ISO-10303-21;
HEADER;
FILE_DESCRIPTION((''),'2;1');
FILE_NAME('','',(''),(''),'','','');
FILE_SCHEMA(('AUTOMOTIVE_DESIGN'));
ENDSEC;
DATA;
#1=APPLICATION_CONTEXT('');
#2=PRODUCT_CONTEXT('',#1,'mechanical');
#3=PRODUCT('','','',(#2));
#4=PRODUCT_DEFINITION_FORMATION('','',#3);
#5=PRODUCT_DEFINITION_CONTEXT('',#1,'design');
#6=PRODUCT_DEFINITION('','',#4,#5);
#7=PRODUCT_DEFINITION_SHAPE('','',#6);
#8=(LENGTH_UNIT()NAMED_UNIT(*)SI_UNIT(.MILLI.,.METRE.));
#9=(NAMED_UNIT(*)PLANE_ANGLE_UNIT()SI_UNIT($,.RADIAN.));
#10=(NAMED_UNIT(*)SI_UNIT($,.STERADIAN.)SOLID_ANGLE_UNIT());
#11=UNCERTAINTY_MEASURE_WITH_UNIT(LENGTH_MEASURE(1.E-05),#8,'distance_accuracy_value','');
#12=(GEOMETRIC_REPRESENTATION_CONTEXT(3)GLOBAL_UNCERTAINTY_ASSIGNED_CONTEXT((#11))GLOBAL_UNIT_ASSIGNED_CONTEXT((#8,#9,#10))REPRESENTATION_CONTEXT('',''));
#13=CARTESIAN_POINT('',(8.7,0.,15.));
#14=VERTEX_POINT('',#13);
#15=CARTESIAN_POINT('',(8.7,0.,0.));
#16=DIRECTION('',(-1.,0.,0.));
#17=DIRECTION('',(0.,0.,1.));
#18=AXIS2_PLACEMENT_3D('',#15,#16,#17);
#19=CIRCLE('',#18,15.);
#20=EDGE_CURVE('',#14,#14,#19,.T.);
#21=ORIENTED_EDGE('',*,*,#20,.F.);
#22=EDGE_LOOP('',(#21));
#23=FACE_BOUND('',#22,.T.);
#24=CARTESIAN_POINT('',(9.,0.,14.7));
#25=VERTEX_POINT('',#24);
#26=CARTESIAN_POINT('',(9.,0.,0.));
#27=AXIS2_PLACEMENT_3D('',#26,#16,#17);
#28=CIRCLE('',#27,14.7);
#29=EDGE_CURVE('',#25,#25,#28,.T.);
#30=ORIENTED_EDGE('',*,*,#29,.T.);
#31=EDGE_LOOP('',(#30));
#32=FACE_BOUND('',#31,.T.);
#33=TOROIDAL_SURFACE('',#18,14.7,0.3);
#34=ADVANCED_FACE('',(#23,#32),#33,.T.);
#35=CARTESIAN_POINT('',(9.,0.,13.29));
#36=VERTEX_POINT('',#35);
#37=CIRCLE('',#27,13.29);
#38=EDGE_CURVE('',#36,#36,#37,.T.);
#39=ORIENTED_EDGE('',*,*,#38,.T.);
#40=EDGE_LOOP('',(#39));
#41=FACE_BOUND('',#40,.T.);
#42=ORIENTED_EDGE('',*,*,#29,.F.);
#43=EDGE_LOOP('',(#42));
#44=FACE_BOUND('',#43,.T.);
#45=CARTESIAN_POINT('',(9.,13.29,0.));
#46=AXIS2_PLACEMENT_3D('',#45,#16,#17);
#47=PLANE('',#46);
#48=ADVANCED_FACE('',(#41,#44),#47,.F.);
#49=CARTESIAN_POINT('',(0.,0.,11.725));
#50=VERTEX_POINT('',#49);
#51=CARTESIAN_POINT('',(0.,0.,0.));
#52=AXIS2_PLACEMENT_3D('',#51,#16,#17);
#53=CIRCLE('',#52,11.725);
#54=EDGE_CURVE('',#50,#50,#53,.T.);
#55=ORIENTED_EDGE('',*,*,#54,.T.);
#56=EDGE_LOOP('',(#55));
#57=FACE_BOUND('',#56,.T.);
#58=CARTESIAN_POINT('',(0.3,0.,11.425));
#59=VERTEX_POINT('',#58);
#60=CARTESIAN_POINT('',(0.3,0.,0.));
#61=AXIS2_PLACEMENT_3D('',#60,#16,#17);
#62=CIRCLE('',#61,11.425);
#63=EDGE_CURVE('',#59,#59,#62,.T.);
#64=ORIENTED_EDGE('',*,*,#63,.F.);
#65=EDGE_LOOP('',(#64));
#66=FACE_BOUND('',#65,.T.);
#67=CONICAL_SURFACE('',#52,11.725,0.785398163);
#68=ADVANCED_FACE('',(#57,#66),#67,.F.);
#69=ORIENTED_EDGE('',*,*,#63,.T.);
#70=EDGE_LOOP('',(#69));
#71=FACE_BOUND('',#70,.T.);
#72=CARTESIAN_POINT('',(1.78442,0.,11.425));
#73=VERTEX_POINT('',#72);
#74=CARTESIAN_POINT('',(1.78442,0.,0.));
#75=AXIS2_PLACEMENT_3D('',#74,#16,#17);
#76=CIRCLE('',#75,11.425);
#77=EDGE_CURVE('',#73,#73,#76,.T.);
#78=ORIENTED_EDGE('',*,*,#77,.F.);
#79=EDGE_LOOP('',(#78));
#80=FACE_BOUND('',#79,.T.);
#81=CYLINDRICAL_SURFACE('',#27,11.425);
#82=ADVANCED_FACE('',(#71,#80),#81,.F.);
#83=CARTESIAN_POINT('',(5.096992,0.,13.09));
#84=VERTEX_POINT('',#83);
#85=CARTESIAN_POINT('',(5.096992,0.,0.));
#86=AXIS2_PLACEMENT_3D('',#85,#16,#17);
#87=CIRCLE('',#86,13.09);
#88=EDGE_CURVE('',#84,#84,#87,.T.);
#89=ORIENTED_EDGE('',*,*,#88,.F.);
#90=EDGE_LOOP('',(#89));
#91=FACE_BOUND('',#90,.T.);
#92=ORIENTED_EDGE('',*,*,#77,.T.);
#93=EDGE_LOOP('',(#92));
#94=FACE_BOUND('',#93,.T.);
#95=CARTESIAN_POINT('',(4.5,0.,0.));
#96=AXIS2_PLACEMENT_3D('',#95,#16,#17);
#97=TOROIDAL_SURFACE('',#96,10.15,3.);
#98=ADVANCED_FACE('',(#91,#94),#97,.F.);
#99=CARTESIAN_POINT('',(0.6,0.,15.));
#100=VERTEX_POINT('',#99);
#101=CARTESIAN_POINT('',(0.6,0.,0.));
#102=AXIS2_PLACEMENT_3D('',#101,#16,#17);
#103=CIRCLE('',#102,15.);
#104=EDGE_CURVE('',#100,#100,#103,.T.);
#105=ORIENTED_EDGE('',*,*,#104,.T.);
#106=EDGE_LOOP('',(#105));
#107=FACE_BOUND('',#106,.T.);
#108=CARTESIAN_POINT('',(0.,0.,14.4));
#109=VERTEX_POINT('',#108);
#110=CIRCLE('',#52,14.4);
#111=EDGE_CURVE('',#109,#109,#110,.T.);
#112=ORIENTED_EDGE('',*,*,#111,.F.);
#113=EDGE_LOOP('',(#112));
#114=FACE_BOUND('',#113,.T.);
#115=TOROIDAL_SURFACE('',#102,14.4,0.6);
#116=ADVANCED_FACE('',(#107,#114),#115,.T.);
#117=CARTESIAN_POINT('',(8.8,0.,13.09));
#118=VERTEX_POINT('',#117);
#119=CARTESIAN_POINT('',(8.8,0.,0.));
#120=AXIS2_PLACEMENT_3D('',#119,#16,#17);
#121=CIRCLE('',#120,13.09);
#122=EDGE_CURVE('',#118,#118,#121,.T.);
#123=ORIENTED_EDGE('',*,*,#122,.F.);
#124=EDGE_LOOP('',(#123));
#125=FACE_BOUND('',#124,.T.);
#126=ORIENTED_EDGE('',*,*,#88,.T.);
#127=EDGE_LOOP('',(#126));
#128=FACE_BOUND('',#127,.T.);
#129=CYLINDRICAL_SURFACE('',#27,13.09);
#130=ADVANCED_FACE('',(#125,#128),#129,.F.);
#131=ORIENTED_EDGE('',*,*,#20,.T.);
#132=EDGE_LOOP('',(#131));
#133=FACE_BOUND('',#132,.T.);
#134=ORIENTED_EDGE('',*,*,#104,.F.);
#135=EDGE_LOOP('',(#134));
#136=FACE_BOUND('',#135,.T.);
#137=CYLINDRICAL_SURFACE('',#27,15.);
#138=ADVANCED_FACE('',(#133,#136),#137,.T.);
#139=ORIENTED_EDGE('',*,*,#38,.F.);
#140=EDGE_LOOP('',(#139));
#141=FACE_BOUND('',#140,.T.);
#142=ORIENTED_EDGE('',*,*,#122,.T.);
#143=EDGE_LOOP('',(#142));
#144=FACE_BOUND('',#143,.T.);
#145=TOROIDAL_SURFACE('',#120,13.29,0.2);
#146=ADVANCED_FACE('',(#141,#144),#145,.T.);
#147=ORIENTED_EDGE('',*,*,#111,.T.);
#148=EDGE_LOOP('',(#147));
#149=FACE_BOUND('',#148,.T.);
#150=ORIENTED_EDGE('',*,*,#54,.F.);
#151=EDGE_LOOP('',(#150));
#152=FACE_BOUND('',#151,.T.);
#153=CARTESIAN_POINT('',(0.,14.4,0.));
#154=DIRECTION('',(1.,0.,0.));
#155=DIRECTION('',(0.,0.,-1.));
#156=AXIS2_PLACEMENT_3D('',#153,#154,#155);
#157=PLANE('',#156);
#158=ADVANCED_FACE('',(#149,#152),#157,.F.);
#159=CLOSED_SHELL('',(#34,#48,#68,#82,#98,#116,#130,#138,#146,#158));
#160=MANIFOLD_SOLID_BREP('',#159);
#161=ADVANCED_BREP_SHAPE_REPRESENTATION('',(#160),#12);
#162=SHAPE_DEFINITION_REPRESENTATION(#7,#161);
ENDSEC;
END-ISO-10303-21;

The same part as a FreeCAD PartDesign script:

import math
import FreeCAD as App
import Part
import Sketcher

V = App.Vector
Q = App.Units.Quantity

doc = App.newDocument("Part")
body = doc.addObject("PartDesign::Body", "Body")

sketch1 = doc.addObject("Sketcher::SketchObject", "Sketch")
body.addObject(sketch1)
sketch1.AttachmentSupport = (doc.XY_Plane, [""])
sketch1.MapMode = "FlatFace"
sketch1.addGeometry([
    Part.LineSegment(V(0, 11.725, 0), V(0.3, 11.425, 0)),
    Part.LineSegment(V(0.3, 11.425, 0), V(1.78442, 11.425, 0)),
    Part.ArcOfCircle(Part.Circle(V(4.5, 10.15, 0), V(0, 0, 1), 3), math.radians(78.521659), math.radians(154.849337)),
    Part.LineSegment(V(5.096992, 13.09, 0), V(8.8, 13.09, 0)),
    Part.ArcOfCircle(Part.Circle(V(8.8, 13.29, 0), V(0, 0, 1), 0.2), math.radians(-90), math.radians(0)),
    Part.LineSegment(V(9, 13.29, 0), V(9, 14.7, 0)),
    Part.ArcOfCircle(Part.Circle(V(8.7, 14.7, 0), V(0, 0, 1), 0.3), math.radians(0), math.radians(90)),
    Part.LineSegment(V(8.7, 15, 0), V(0.6, 15, 0)),
    Part.ArcOfCircle(Part.Circle(V(0.6, 14.4, 0), V(0, 0, 1), 0.6), math.radians(90), math.radians(180)),
    Part.LineSegment(V(0, 14.4, 0), V(0, 11.725, 0)),
], False)
sketch1.addConstraint([
    Sketcher.Constraint("Coincident", 0, 2, 1, 1),
    Sketcher.Constraint("Coincident", 1, 2, 2, 2),
    Sketcher.Constraint("Coincident", 2, 1, 3, 1),
    Sketcher.Constraint("Tangent", 3, 2, 4, 1),
    Sketcher.Constraint("Tangent", 4, 2, 5, 1),
    Sketcher.Constraint("Tangent", 5, 2, 6, 1),
    Sketcher.Constraint("Tangent", 6, 2, 7, 1),
    Sketcher.Constraint("Tangent", 7, 2, 8, 1),
    Sketcher.Constraint("Tangent", 8, 2, 9, 1),
    Sketcher.Constraint("Coincident", 9, 2, 0, 1),
    Sketcher.Constraint("Horizontal", 1),
    Sketcher.Constraint("Horizontal", 3),
    Sketcher.Constraint("Vertical", 5),
    Sketcher.Constraint("Horizontal", 7),
    Sketcher.Constraint("Vertical", 9),
    Sketcher.Constraint("PointOnObject", 8, 2, -2),
    Sketcher.Constraint("Radius", 2, 3.0),
    Sketcher.Constraint("Radius", 4, 0.2),
    Sketcher.Constraint("Radius", 6, 0.3),
    Sketcher.Constraint("Radius", 8, 0.6),
    Sketcher.Constraint("Angle", 0, Q("-45 deg")),
    Sketcher.Constraint("DistanceX", 7, 2, 7, 1, 8.1),
    Sketcher.Constraint("DistanceY", -1, 1, 6, 2, 15.0),
    Sketcher.Constraint("DistanceY", 5, 1, 5, 2, 1.41),
    Sketcher.Constraint("DistanceX", -1, 1, 2, 3, 4.5),
    Sketcher.Constraint("DistanceX", -1, 1, 0, 2, 0.3),
    Sketcher.Constraint("DistanceY", 9, 2, 9, 1, 2.675),
    Sketcher.Constraint("DistanceY", -1, 1, 2, 3, 10.15),
])
revolution = doc.addObject("PartDesign::Revolution", "Revolution")
body.addObject(revolution)
revolution.Profile = sketch1
revolution.ReferenceAxis = (sketch1, ["H_Axis"])
revolution.Angle = 360

doc.recompute()
